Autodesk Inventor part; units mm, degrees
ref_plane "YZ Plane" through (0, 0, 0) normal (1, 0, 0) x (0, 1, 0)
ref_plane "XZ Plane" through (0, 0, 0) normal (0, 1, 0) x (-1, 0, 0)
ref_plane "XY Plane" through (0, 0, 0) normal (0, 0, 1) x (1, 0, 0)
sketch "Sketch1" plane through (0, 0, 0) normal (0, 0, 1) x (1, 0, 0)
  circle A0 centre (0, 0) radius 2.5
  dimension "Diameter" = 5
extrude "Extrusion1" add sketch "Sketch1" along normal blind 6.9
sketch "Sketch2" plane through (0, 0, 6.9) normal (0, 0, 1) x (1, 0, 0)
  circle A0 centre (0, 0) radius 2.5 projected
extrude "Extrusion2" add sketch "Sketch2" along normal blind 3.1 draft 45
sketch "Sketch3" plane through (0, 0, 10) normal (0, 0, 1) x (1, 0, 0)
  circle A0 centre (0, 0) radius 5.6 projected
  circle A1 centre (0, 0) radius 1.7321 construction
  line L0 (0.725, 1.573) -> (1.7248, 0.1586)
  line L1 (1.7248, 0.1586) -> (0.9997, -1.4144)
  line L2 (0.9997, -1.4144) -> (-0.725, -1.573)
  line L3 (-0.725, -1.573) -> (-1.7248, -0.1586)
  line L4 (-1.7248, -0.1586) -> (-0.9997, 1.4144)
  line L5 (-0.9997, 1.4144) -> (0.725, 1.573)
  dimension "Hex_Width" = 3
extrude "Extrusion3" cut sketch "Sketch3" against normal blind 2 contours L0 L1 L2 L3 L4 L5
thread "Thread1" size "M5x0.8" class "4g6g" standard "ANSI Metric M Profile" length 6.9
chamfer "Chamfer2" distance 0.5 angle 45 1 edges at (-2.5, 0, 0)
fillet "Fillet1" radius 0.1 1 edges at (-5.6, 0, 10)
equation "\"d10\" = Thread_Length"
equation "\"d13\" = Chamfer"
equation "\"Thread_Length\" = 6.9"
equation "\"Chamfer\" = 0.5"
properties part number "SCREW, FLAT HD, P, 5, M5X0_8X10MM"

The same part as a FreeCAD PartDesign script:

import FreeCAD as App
import Part
import Sketcher
from FreeCAD import Vector
Q = App.Units.Quantity


def edges_at(feature, points):
    """Names of the edges that pass closest to the given points."""
    edges = feature.Shape.Edges
    near = lambda p: min(range(len(edges)), key=lambda i: edges[i].distToShape(Part.Vertex(*p))[0])
    return sorted({f"Edge{near(p) + 1}" for p in points})

doc = App.newDocument("Part")
body = doc.addObject("PartDesign::Body", "Body")

sketch1 = body.newObject("Sketcher::SketchObject", "Sketch")
sketch1.AttachmentSupport = (doc.getObject("XY_Plane"), [""])
sketch1.MapMode = "FlatFace"
sketch1.addGeometry(Part.Circle(Vector(0, 0, 0), Vector(0, 0, 1), 2.5), False)
sketch1.addConstraint(Sketcher.Constraint("Coincident", 0, 3, -1, 1))
sketch1.addConstraint(Sketcher.Constraint("Diameter", 0, Q("5 mm")))
pad1 = body.newObject("PartDesign::Pad", "Pad")
pad1.Profile = sketch1
pad1.Length = 6.9

sketch2 = body.newObject("Sketcher::SketchObject", "Sketch001")
sketch2.AttachmentSupport = (doc.getObject("XY_Plane"), [""])
sketch2.MapMode = "FlatFace"
sketch2.AttachmentOffset = App.Placement(Vector(0, 0, 6.9), App.Rotation())
sketch2.addGeometry(Part.Circle(Vector(0, 0, 0), Vector(0, 0, 1), 2.5), False)
sketch2.addConstraint(Sketcher.Constraint("Coincident", 0, 3, -1, 1))
sketch2.addConstraint(Sketcher.Constraint("Diameter", 0, Q("5 mm")))
pad2 = body.newObject("PartDesign::Pad", "Pad001")
pad2.Profile = sketch2
pad2.Length = 3.1
pad2.TaperAngle = 45

sketch3 = body.newObject("Sketcher::SketchObject", "Sketch002")
sketch3.AttachmentSupport = (doc.getObject("XY_Plane"), [""])
sketch3.MapMode = "FlatFace"
sketch3.AttachmentOffset = App.Placement(Vector(0, 0, 10), App.Rotation())
sketch3.addGeometry(Part.LineSegment(Vector(1.7, 0.2, 0), Vector(0.7, 1.6, 0)), False)
sketch3.addGeometry(Part.LineSegment(Vector(0.7, 1.6, 0), Vector(-1, 1.4, 0)), False)
sketch3.addGeometry(Part.LineSegment(Vector(-1, 1.4, 0), Vector(-1.7, -0.2, 0)), False)
sketch3.addGeometry(Part.LineSegment(Vector(-1.7, -0.2, 0), Vector(-0.7, -1.6, 0)), False)
sketch3.addGeometry(Part.LineSegment(Vector(-0.7, -1.6, 0), Vector(1, -1.4, 0)), False)
sketch3.addGeometry(Part.LineSegment(Vector(1, -1.4, 0), Vector(1.7, 0.2, 0)), False)
sketch3.addConstraint(Sketcher.Constraint("Coincident", 0, 2, 1, 1))
sketch3.addConstraint(Sketcher.Constraint("Coincident", 1, 2, 2, 1))
sketch3.addConstraint(Sketcher.Constraint("Coincident", 2, 2, 3, 1))
sketch3.addConstraint(Sketcher.Constraint("Coincident", 3, 2, 4, 1))
sketch3.addConstraint(Sketcher.Constraint("Coincident", 4, 2, 5, 1))
sketch3.addConstraint(Sketcher.Constraint("Coincident", 5, 2, 0, 1))
sketch3.addConstraint(Sketcher.Constraint("Symmetric", 0, 2, 3, 2, -1, 1))
sketch3.addConstraint(Sketcher.Constraint("Symmetric", 1, 2, 4, 2, -1, 1))
sketch3.addConstraint(Sketcher.Constraint("Symmetric", 2, 2, 5, 2, -1, 1))
sketch3.addConstraint(Sketcher.Constraint("Equal", 0, 1))
sketch3.addConstraint(Sketcher.Constraint("Equal", 1, 2))
sketch3.addConstraint(Sketcher.Constraint("DistanceX", 3, 2, 0, 2, Q("1.45 mm")))
sketch3.addConstraint(Sketcher.Constraint("Distance", 0, Q("1.732 mm")))
sketch3.addConstraint(Sketcher.Constraint("DistanceY", -1, 1, 0, 2, Q("1.573 mm")))
sketch3.addConstraint(Sketcher.Constraint("DistanceX", 2, 2, 1, 2, Q("0.725 mm")))
pocket1 = body.newObject("PartDesign::Pocket", "Pocket")
pocket1.Profile = sketch3
pocket1.Length = 2
doc.recompute()

chamfer = body.newObject("PartDesign::Chamfer", "Chamfer")
chamfer.Base = (pocket1, edges_at(pocket1, [(-2.5, 0, 0)]))
chamfer.Size = 0.5
doc.recompute()

fillet = body.newObject("PartDesign::Fillet", "Fillet")
fillet.Base = (chamfer, edges_at(chamfer, [(-5.6, 0, 10)]))
fillet.Radius = 0.1

doc.recompute()
